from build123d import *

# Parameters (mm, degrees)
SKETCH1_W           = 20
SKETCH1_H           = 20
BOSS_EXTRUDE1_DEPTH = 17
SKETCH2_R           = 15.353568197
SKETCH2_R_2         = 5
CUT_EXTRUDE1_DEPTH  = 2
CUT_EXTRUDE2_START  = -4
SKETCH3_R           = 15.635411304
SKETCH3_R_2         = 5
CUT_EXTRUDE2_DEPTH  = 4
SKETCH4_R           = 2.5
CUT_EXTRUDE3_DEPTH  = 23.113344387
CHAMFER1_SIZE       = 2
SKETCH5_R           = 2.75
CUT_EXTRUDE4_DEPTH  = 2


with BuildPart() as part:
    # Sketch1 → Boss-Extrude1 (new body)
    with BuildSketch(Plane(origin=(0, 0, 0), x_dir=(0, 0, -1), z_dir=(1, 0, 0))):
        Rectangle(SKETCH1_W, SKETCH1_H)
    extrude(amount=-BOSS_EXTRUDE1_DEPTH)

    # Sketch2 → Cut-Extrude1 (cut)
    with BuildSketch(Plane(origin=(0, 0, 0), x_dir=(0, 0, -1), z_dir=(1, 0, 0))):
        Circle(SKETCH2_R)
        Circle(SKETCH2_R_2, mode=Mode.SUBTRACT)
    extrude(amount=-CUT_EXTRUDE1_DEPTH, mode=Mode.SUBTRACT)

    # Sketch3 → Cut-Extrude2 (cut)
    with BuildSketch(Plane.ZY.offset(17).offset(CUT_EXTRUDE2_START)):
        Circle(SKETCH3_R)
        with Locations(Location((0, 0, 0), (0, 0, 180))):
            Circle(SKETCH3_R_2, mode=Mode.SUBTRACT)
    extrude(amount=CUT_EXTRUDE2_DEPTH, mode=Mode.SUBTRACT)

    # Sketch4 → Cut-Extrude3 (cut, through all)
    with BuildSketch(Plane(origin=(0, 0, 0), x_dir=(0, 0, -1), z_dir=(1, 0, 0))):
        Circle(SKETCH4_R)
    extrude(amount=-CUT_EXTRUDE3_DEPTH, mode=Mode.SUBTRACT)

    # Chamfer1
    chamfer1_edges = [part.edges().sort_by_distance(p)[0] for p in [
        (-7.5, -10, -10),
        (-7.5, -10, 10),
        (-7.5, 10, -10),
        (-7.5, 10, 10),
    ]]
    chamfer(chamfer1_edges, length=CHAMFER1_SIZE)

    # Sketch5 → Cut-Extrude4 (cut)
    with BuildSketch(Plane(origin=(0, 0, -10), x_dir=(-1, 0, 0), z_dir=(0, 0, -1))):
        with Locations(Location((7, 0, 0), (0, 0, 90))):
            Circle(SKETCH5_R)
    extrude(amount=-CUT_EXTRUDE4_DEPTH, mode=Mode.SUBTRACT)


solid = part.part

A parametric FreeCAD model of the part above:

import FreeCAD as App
import Part
import Sketcher
from FreeCAD import Vector


def edges_at(feature, points):
    """Names of the edges that pass closest to the given points."""
    edges = feature.Shape.Edges
    near = lambda p: min(range(len(edges)), key=lambda i: edges[i].distToShape(Part.Vertex(*p))[0])
    return sorted({f"Edge{near(p) + 1}" for p in points})

doc = App.newDocument("Part")
params = doc.addObject("Spreadsheet::Sheet", "Params")
for row, (alias, value) in enumerate([
    ("sketch1_width", "20 mm"),
    ("pad1_length", "17 mm"),
    ("sketch2_diameter", "10 mm"),
    ("pocket1_length", "2 mm"),
    ("sketch3_diameter", "10 mm"),
    ("pocket2_length", "4 mm"),
    ("sketch4_diameter", "5 mm"),
    ("chamfer_size", "2 mm"),
    ("sketch5_diameter", "5.5 mm"),
    ("pocket4_length", "2 mm"),
], start=1):
    params.set(f"A{row}", alias)
    params.set(f"B{row}", "=" + value)
    params.setAlias(f"B{row}", alias)

body = doc.addObject("PartDesign::Body", "Body")

# Sketch on YZ plane
sketch1 = body.newObject("Sketcher::SketchObject", "Sketch")
sketch1.AttachmentSupport = (doc.getObject("YZ_Plane"), [""])
sketch1.MapMode = "FlatFace"
sketch1.addGeometry(Part.LineSegment(Vector(10, 10, 0), Vector(-10, 10, 0)), False)
sketch1.addGeometry(Part.LineSegment(Vector(-10, 10, 0), Vector(-10, -10, 0)), False)
sketch1.addGeometry(Part.LineSegment(Vector(-10, -10, 0), Vector(10, -10, 0)), False)
sketch1.addGeometry(Part.LineSegment(Vector(10, -10, 0), Vector(10, 10, 0)), False)
sketch1.addConstraint(Sketcher.Constraint("Coincident", 0, 2, 1, 1))
sketch1.addConstraint(Sketcher.Constraint("Coincident", 1, 2, 2, 1))
sketch1.addConstraint(Sketcher.Constraint("Coincident", 2, 2, 3, 1))
sketch1.addConstraint(Sketcher.Constraint("Coincident", 3, 2, 0, 1))
sketch1.addConstraint(Sketcher.Constraint("Horizontal", 0))
sketch1.addConstraint(Sketcher.Constraint("Vertical", 1))
sketch1.addConstraint(Sketcher.Constraint("Horizontal", 2))
sketch1.addConstraint(Sketcher.Constraint("Vertical", 3))
sketch1.addConstraint(Sketcher.Constraint("Symmetric", 0, 2, 2, 2, -1, 1))
sketch1.addConstraint(Sketcher.Constraint("Equal", 2, 1))
sketch1.addConstraint(Sketcher.Constraint("DistanceX", 0, 2, 0, 1, 20.0))
sketch1.setExpression("Constraints[10]", "Params.sketch1_width")
pad1 = body.newObject("PartDesign::Pad", "Pad")
pad1.Profile = sketch1
pad1.setExpression("Length", "Params.pad1_length")
pad1.Reversed = True

# Sketch on YZ plane
sketch2 = body.newObject("Sketcher::SketchObject", "Sketch001")
sketch2.AttachmentSupport = (doc.getObject("YZ_Plane"), [""])
sketch2.MapMode = "FlatFace"
sketch2.addGeometry(Part.Circle(Vector(0, 0, 0), Vector(0, 0, 1), 15), False)
sketch2.addGeometry(Part.Circle(Vector(0, 0, 0), Vector(0, 0, 1), 5), False)
sketch2.addConstraint(Sketcher.Constraint("Coincident", 0, 3, -1, 1))
sketch2.addConstraint(Sketcher.Constraint("Coincident", 1, 3, -1, 1))
sketch2.addConstraint(Sketcher.Constraint("Diameter", 1, 10.0))
sketch2.addConstraint(Sketcher.Constraint("Diameter", 0, 30.707136))
sketch2.setExpression("Constraints[2]", "Params.sketch2_diameter")
pocket1 = body.newObject("PartDesign::Pocket", "Pocket")
pocket1.Profile = sketch2
pocket1.setExpression("Length", "Params.pocket1_length")

# Sketch on YZ plane
sketch3 = body.newObject("Sketcher::SketchObject", "Sketch002")
sketch3.AttachmentSupport = (doc.getObject("YZ_Plane"), [""])
sketch3.MapMode = "FlatFace"
sketch3.AttachmentOffset = App.Placement(Vector(0, 0, -13), App.Rotation())
sketch3.addGeometry(Part.Circle(Vector(0, 0, 0), Vector(0, 0, 1), 16), False)
sketch3.addGeometry(Part.Circle(Vector(0, 0, 0), Vector(0, 0, 1), 5), False)
sketch3.addConstraint(Sketcher.Constraint("Coincident", 0, 3, -1, 1))
sketch3.addConstraint(Sketcher.Constraint("Coincident", 1, 3, -1, 1))
sketch3.addConstraint(Sketcher.Constraint("Diameter", 1, 10.0))
sketch3.addConstraint(Sketcher.Constraint("Diameter", 0, 31.270823))
sketch3.setExpression("Constraints[2]", "Params.sketch3_diameter")
pocket2 = body.newObject("PartDesign::Pocket", "Pocket001")
pocket2.Profile = sketch3
pocket2.setExpression("Length", "Params.pocket2_length")

# Sketch on YZ plane
sketch4 = body.newObject("Sketcher::SketchObject", "Sketch003")
sketch4.AttachmentSupport = (doc.getObject("YZ_Plane"), [""])
sketch4.MapMode = "FlatFace"
sketch4.addGeometry(Part.Circle(Vector(0, 0, 0), Vector(0, 0, 1), 2.5), False)
sketch4.addConstraint(Sketcher.Constraint("Coincident", 0, 3, -1, 1))
sketch4.addConstraint(Sketcher.Constraint("Diameter", 0, 5.0))
sketch4.setExpression("Constraints[1]", "Params.sketch4_diameter")
pocket3 = body.newObject("PartDesign::Pocket", "Pocket002")
pocket3.Profile = sketch4
pocket3.Type = "ThroughAll"
doc.recompute()

chamfer = body.newObject("PartDesign::Chamfer", "Chamfer")
chamfer.Base = (pocket3, edges_at(pocket3, [
    (-7.5, -10, -10),
    (-7.5, -10, 10),
    (-7.5, 10, -10),
    (-7.5, 10, 10),
]))
chamfer.setExpression("Size", "Params.chamfer_size")

# Sketch on XY plane
sketch5 = body.newObject("Sketcher::SketchObject", "Sketch004")
sketch5.AttachmentSupport = (doc.getObject("XY_Plane"), [""])
sketch5.MapMode = "FlatFace"
sketch5.AttachmentOffset = App.Placement(Vector(0, 0, -10), App.Rotation())
sketch5.addGeometry(Part.Circle(Vector(-7, 0, 0), Vector(0, 0, 1), 2.8), False)
sketch5.addConstraint(Sketcher.Constraint("PointOnObject", 0, 3, -1))
sketch5.addConstraint(Sketcher.Constraint("Diameter", 0, 5.5))
sketch5.addConstraint(Sketcher.Constraint("DistanceX", 0, 3, -1, 1, 7.0))
sketch5.setExpression("Constraints[1]", "Params.sketch5_diameter")
pocket4 = body.newObject("PartDesign::Pocket", "Pocket003")
pocket4.Profile = sketch5
pocket4.setExpression("Length", "Params.pocket4_length")
pocket4.Reversed = True

doc.recompute()
